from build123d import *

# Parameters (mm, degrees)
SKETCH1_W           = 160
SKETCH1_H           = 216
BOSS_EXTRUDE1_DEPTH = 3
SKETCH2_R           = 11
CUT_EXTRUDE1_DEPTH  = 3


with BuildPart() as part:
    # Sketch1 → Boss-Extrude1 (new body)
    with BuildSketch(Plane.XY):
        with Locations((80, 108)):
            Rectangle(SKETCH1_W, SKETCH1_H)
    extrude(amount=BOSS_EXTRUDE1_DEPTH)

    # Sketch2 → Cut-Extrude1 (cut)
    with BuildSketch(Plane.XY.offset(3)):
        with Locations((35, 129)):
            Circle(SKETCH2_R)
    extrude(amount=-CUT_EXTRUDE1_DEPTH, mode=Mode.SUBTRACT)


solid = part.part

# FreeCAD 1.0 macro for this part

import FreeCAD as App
import Part
import Sketcher
from FreeCAD import Vector


def add_polygon(sketch, points):
    """Adds a closed chain of lines whose ends are joined by coincident constraints."""
    first, n = sketch.GeometryCount, len(points)
    for a, b in zip(points, points[1:] + points[:1]):
        sketch.addGeometry(Part.LineSegment(App.Vector(*a, 0), App.Vector(*b, 0)), False)
    for i in range(n):
        sketch.addConstraint(Sketcher.Constraint("Coincident", first + i, 2, first + (i + 1) % n, 1))

doc = App.newDocument("Part")
body = doc.addObject("PartDesign::Body", "Body")

# Sketch on XY plane
sketch1 = body.newObject("Sketcher::SketchObject", "Sketch")
sketch1.AttachmentSupport = (doc.getObject("XY_Plane"), [""])
sketch1.MapMode = "FlatFace"
add_polygon(sketch1, [(0, 216), (0, 0), (160, 0), (160, 216)])  # lines 0-3
sketch1.addConstraint([
    Sketcher.Constraint("Vertical", 0),
    Sketcher.Constraint("Horizontal", 1),
    Sketcher.Constraint("Vertical", 2),
    Sketcher.Constraint("Horizontal", 3),
    Sketcher.Constraint("Coincident", 0, 2, -1, 1),
    Sketcher.Constraint("DistanceX", 1, 1, 1, 2, 160.0),
    Sketcher.Constraint("DistanceY", 0, 2, 0, 1, 216.0),
])
pad1 = body.newObject("PartDesign::Pad", "Pad")
pad1.Profile = sketch1
pad1.Length = 3

# Sketch on XY plane
sketch2 = body.newObject("Sketcher::SketchObject", "Sketch001")
sketch2.AttachmentSupport = (doc.getObject("XY_Plane"), [""])
sketch2.MapMode = "FlatFace"
sketch2.AttachmentOffset = App.Placement(Vector(0, 0, 3), App.Rotation())
sketch2.addGeometry(Part.Circle(Vector(35, 129, 0), Vector(0, 0, 1), 11), False)
sketch2.addConstraint([
    Sketcher.Constraint("Diameter", 0, 22.0),
    Sketcher.Constraint("DistanceX", -1, 1, 0, 3, 35.0),
    Sketcher.Constraint("DistanceY", -1, 1, 0, 3, 129.0),
])
pocket1 = body.newObject("PartDesign::Pocket", "Pocket")
pocket1.Profile = sketch2
pocket1.Length = 3

doc.recompute()
